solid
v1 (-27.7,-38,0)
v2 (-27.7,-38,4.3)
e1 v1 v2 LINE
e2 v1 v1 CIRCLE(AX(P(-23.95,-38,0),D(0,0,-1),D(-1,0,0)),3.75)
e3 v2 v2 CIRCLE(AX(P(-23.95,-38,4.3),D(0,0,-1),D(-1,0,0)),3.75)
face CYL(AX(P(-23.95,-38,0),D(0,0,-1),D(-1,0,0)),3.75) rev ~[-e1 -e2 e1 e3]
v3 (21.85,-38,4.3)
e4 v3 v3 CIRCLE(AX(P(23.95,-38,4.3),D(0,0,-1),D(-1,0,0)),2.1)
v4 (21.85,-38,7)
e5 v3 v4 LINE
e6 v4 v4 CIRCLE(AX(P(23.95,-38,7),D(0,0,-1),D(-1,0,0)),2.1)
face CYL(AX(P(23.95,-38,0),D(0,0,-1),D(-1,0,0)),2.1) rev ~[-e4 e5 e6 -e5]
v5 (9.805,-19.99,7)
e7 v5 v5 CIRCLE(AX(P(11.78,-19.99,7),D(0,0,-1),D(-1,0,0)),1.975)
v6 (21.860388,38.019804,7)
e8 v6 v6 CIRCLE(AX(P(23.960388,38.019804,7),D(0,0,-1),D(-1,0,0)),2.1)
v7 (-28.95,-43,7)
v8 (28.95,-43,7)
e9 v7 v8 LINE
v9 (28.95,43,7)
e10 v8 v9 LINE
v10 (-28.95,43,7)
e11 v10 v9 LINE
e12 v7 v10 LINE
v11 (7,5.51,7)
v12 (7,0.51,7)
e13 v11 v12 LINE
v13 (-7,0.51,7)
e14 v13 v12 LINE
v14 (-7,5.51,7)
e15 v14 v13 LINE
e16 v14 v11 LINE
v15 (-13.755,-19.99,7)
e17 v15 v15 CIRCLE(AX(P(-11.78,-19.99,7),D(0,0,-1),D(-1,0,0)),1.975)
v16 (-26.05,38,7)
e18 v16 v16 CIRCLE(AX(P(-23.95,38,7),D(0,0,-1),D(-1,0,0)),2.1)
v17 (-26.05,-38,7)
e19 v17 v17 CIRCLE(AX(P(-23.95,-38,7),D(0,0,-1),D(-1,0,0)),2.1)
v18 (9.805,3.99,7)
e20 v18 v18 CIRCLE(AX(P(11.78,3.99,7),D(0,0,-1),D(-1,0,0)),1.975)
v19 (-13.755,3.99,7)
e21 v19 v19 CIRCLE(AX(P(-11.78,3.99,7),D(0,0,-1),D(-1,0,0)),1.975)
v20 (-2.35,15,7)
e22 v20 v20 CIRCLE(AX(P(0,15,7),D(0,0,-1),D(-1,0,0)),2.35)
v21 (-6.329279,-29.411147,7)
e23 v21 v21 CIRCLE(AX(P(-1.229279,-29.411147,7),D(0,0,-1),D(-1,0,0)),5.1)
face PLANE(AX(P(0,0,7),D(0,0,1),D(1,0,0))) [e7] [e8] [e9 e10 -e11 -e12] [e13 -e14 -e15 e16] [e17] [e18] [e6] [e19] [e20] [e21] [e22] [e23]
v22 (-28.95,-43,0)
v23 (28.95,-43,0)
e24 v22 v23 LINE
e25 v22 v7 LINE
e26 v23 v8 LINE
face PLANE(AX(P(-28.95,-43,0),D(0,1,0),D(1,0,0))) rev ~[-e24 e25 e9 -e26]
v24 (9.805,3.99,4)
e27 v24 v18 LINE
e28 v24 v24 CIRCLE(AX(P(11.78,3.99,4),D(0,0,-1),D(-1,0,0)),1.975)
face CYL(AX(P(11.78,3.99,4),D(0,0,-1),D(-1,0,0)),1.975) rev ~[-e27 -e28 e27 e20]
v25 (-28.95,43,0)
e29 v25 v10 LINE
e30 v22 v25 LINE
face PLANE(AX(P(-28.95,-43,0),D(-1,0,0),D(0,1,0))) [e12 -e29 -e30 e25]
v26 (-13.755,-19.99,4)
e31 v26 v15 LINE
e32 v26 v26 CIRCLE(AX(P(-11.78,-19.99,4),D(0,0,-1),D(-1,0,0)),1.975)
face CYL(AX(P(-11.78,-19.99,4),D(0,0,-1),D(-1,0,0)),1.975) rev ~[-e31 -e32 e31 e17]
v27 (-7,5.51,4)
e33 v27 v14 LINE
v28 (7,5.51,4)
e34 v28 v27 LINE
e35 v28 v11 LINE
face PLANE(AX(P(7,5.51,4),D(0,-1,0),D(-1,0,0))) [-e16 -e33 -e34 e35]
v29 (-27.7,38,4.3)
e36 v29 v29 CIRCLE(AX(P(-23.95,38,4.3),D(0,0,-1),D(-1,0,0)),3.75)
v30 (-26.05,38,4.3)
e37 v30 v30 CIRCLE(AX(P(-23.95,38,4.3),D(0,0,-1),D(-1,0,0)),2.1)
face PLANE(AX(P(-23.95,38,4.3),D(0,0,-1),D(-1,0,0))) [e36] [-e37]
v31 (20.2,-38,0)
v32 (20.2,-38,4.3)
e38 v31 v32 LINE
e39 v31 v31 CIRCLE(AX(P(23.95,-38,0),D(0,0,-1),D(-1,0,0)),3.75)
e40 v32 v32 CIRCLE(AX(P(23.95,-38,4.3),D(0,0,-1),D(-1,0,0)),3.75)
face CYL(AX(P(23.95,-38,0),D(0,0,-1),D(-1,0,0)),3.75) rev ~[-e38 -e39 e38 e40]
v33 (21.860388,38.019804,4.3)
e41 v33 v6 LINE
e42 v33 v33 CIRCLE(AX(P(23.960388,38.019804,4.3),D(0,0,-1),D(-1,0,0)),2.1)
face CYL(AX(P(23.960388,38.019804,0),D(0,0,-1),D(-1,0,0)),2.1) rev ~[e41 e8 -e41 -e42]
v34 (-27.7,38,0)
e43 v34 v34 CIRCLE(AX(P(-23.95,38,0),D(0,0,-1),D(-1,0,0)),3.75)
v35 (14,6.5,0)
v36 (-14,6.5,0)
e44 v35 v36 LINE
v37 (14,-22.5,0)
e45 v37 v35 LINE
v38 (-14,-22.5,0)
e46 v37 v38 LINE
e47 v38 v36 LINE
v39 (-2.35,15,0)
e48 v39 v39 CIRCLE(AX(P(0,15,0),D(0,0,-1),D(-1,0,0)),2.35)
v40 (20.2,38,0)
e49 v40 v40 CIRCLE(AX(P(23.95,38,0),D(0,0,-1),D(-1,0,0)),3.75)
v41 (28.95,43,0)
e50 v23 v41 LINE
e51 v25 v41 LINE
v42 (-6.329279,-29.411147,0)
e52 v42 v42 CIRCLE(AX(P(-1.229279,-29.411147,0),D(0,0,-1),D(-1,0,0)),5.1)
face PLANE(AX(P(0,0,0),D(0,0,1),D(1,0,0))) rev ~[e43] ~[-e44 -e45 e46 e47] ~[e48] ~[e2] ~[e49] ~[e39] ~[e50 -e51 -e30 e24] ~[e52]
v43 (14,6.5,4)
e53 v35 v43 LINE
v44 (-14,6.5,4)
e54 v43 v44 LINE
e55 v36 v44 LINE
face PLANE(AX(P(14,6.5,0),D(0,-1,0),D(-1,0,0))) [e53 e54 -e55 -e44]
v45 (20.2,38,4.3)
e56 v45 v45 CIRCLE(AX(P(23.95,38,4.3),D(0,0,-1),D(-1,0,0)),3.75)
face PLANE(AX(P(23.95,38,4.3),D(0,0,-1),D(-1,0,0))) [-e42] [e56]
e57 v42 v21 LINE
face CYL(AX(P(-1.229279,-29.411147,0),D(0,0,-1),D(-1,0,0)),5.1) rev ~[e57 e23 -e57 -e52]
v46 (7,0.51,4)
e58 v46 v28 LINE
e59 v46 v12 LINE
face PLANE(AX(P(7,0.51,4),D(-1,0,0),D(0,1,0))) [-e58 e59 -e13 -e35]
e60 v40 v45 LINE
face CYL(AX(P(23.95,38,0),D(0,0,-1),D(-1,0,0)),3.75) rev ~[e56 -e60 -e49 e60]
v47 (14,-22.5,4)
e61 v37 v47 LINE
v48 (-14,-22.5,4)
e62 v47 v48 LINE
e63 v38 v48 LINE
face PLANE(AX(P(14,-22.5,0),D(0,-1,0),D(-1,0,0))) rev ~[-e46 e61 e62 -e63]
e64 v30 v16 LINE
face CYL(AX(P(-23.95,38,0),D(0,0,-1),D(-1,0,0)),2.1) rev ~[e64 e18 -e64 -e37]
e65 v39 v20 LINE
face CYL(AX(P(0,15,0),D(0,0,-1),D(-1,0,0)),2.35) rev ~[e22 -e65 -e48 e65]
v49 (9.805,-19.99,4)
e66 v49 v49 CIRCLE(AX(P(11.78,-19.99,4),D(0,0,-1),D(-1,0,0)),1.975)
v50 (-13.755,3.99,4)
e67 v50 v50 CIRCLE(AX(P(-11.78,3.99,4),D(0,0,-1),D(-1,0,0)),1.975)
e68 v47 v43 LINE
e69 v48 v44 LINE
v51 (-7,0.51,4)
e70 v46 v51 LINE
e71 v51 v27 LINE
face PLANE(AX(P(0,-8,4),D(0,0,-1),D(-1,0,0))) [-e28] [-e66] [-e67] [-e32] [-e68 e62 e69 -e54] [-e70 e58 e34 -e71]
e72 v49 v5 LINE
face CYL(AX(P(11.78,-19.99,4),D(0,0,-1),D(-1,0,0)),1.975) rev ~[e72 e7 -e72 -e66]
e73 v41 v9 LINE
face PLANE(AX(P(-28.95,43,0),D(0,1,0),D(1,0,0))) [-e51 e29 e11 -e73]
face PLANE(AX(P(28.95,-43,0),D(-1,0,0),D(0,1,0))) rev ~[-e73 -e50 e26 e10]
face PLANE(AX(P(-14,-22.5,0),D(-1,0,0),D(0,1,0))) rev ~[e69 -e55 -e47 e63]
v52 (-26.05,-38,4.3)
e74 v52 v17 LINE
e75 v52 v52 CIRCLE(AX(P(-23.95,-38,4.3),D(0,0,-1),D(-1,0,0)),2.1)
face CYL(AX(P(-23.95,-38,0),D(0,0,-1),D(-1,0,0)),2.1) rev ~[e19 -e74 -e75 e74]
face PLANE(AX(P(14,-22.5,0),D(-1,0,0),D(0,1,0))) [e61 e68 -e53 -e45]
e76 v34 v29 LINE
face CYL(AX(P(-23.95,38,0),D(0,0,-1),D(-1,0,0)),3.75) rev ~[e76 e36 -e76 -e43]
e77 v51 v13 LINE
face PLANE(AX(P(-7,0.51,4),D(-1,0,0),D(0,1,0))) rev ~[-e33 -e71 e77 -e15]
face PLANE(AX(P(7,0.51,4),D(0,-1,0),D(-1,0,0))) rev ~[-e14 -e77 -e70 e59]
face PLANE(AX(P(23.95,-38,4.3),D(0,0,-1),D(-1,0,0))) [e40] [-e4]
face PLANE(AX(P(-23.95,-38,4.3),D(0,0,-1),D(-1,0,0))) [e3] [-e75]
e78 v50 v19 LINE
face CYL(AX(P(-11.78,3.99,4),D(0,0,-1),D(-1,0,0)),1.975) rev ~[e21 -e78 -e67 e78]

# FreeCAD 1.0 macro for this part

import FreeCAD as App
import Part
import Sketcher

V = App.Vector

doc = App.newDocument("Part")
body = doc.addObject("PartDesign::Body", "Body")

sketch1 = body.newObject("Sketcher::SketchObject", "Sketch")
sketch1.AttachmentSupport = (doc.getObject("XY_Plane"), [""])
sketch1.MapMode = "FlatFace"
sketch1.addGeometry(Part.LineSegment(V(-28.95, 43, 0), V(-28.95, -43, 0)), False)
sketch1.addGeometry(Part.LineSegment(V(-28.95, -43, 0), V(28.95, -43, 0)), False)
sketch1.addGeometry(Part.LineSegment(V(28.95, -43, 0), V(28.95, 43, 0)), False)
sketch1.addGeometry(Part.LineSegment(V(28.95, 43, 0), V(-28.95, 43, 0)), False)
sketch1.addConstraint(Sketcher.Constraint("Coincident", 0, 2, 1, 1))
sketch1.addConstraint(Sketcher.Constraint("Coincident", 1, 2, 2, 1))
sketch1.addConstraint(Sketcher.Constraint("Coincident", 2, 2, 3, 1))
sketch1.addConstraint(Sketcher.Constraint("Coincident", 3, 2, 0, 1))
sketch1.addConstraint(Sketcher.Constraint("Vertical", 0))
sketch1.addConstraint(Sketcher.Constraint("Horizontal", 1))
sketch1.addConstraint(Sketcher.Constraint("Vertical", 2))
sketch1.addConstraint(Sketcher.Constraint("Horizontal", 3))
sketch1.addConstraint(Sketcher.Constraint("Symmetric", 0, 2, 2, 2, -1, 1))
sketch1.addConstraint(Sketcher.Constraint("DistanceY", 0, 2, 0, 1, 86.0))
sketch1.addConstraint(Sketcher.Constraint("DistanceX", 1, 1, 1, 2, 57.9))
pad1 = body.newObject("PartDesign::Pad", "Pad")
pad1.Profile = sketch1
pad1.Length = 7

sketch2 = body.newObject("Sketcher::SketchObject", "Sketch001")
sketch2.AttachmentSupport = (doc.getObject("XY_Plane"), [""])
sketch2.MapMode = "FlatFace"
sketch2.addGeometry(Part.Circle(V(-23.95, 38, 0), V(0, 0, 1), 2.1), False)
sketch2.addGeometry(Part.Circle(V(23.960388, 38.019804, 0), V(0, 0, 1), 2.1), False)
sketch2.addGeometry(Part.Circle(V(-23.95, -38, 0), V(0, 0, 1), 2.1), False)
sketch2.addGeometry(Part.Circle(V(23.95, -38, 0), V(0, 0, 1), 2.1), False)
sketch2.addGeometry(Part.Circle(V(-1.229279, -29.411147, 0), V(0, 0, 1), 5.1), False)
sketch2.addConstraint(Sketcher.Constraint("Equal", 0, 1))
sketch2.addConstraint(Sketcher.Constraint("Equal", 1, 2))
sketch2.addConstraint(Sketcher.Constraint("Equal", 2, 3))
sketch2.addConstraint(Sketcher.Constraint("Symmetric", 0, 3, 3, 3, -1, 1))
sketch2.addConstraint(Sketcher.Constraint("Symmetric", 2, 3, 3, 3, -2))
sketch2.addConstraint(Sketcher.Constraint("Diameter", 0, 4.2))
sketch2.addConstraint(Sketcher.Constraint("Diameter", 4, 10.2))
sketch2.addConstraint(Sketcher.Constraint("DistanceY", -1, 1, 0, 3, 38.0))
sketch2.addConstraint(Sketcher.Constraint("DistanceX", 2, 3, 3, 3, 47.9))
sketch2.addConstraint(Sketcher.Constraint("DistanceX", -1, 1, 1, 3, 23.960388))
sketch2.addConstraint(Sketcher.Constraint("DistanceX", 4, 3, -1, 1, 1.229279))
sketch2.addConstraint(Sketcher.Constraint("DistanceY", 4, 3, 1, 3, 67.430951))
sketch2.addConstraint(Sketcher.Constraint("DistanceY", -1, 1, 1, 3, 38.019804))
pocket1 = body.newObject("PartDesign::Pocket", "Pocket")
pocket1.Profile = sketch2
pocket1.Type = "ThroughAll"
pocket1.Reversed = True

sketch3 = body.newObject("Sketcher::SketchObject", "Sketch002")
sketch3.AttachmentSupport = (doc.getObject("XY_Plane"), [""])
sketch3.MapMode = "FlatFace"
sketch3.addGeometry(Part.Circle(V(-23.95, -38, 0), V(0, 0, 1), 3.75), False)
sketch3.addGeometry(Part.Circle(V(23.95, -38, 0), V(0, 0, 1), 3.75), False)
sketch3.addGeometry(Part.Circle(V(-23.95, 38, 0), V(0, 0, 1), 3.75), False)
sketch3.addConstraint(Sketcher.Constraint("Equal", 0, 1))
sketch3.addConstraint(Sketcher.Constraint("Equal", 1, 2))
sketch3.addConstraint(Sketcher.Constraint("Symmetric", 1, 3, 2, 3, -1, 1))
sketch3.addConstraint(Sketcher.Constraint("Symmetric", 0, 3, 1, 3, -2))
sketch3.addConstraint(Sketcher.Constraint("Diameter", 0, 7.5))
sketch3.addConstraint(Sketcher.Constraint("DistanceY", 0, 3, -1, 1, 38.0))
sketch3.addConstraint(Sketcher.Constraint("DistanceX", 0, 3, 1, 3, 47.9))
pocket2 = body.newObject("PartDesign::Pocket", "Pocket001")
pocket2.Profile = sketch3
pocket2.Length = 4.3
pocket2.Reversed = True

sketch4 = body.newObject("Sketcher::SketchObject", "Sketch003")
sketch4.AttachmentSupport = (doc.getObject("XY_Plane"), [""])
sketch4.MapMode = "FlatFace"
sketch4.addGeometry(Part.Circle(V(23.95, 38, 0), V(0, 0, 1), 3.75), False)
sketch4.addConstraint(Sketcher.Constraint("Diameter", 0, 7.5))
sketch4.addConstraint(Sketcher.Constraint("DistanceY", -1, 1, 0, 3, 38.0))
sketch4.addConstraint(Sketcher.Constraint("DistanceX", -1, 1, 0, 3, 23.95))
pocket3 = body.newObject("PartDesign::Pocket", "Pocket002")
pocket3.Profile = sketch4
pocket3.Length = 4.3
pocket3.Reversed = True

sketch5 = body.newObject("Sketcher::SketchObject", "Sketch004")
sketch5.AttachmentSupport = (doc.getObject("XY_Plane"), [""])
sketch5.MapMode = "FlatFace"
sketch5.addGeometry(Part.LineSegment(V(14, 6.5, 0), V(14, -22.5, 0)), False)
sketch5.addGeometry(Part.LineSegment(V(14, -22.5, 0), V(-14, -22.5, 0)), False)
sketch5.addGeometry(Part.LineSegment(V(-14, -22.5, 0), V(-14, 6.5, 0)), False)
sketch5.addGeometry(Part.LineSegment(V(-14, 6.5, 0), V(14, 6.5, 0)), False)
sketch5.addConstraint(Sketcher.Constraint("Coincident", 0, 2, 1, 1))
sketch5.addConstraint(Sketcher.Constraint("Coincident", 1, 2, 2, 1))
sketch5.addConstraint(Sketcher.Constraint("Coincident", 2, 2, 3, 1))
sketch5.addConstraint(Sketcher.Constraint("Coincident", 3, 2, 0, 1))
sketch5.addConstraint(Sketcher.Constraint("Vertical", 0))
sketch5.addConstraint(Sketcher.Constraint("Horizontal", 1))
sketch5.addConstraint(Sketcher.Constraint("Vertical", 2))
sketch5.addConstraint(Sketcher.Constraint("Horizontal", 3))
sketch5.addConstraint(Sketcher.Constraint("DistanceX", 1, 2, 1, 1, 28.0))
sketch5.addConstraint(Sketcher.Constraint("DistanceY", 0, 2, 0, 1, 29.0))
sketch5.addConstraint(Sketcher.Constraint("DistanceX", -1, 1, 0, 2, 14.0))
sketch5.addConstraint(Sketcher.Constraint("DistanceY", 0, 2, -1, 1, 22.5))
pocket4 = body.newObject("PartDesign::Pocket", "Pocket003")
pocket4.Profile = sketch5
pocket4.Length = 4
pocket4.Reversed = True

sketch6 = body.newObject("Sketcher::SketchObject", "Sketch005")
sketch6.AttachmentSupport = (doc.getObject("XY_Plane"), [""])
sketch6.MapMode = "FlatFace"
sketch6.AttachmentOffset = App.Placement(V(0, 0, 4), App.Rotation())
sketch6.addGeometry(Part.Circle(V(-11.78, -19.99, 0), V(0, 0, 1), 1.975), False)
sketch6.addGeometry(Part.Circle(V(11.78, -19.99, 0), V(0, 0, 1), 1.975), False)
sketch6.addGeometry(Part.Circle(V(11.78, 3.99, 0), V(0, 0, 1), 1.975), False)
sketch6.addGeometry(Part.Circle(V(-11.78, 3.99, 0), V(0, 0, 1), 1.975), False)
sketch6.addGeometry(Part.LineSegment(V(7, 5.51, 0), V(7, 0.51, 0)), False)
sketch6.addGeometry(Part.LineSegment(V(7, 0.51, 0), V(-7, 0.51, 0)), False)
sketch6.addGeometry(Part.LineSegment(V(-7, 0.51, 0), V(-7, 5.51, 0)), False)
sketch6.addGeometry(Part.LineSegment(V(-7, 5.51, 0), V(7, 5.51, 0)), False)
sketch6.addConstraint(Sketcher.Constraint("Coincident", 4, 2, 5, 1))
sketch6.addConstraint(Sketcher.Constraint("Coincident", 5, 2, 6, 1))
sketch6.addConstraint(Sketcher.Constraint("Coincident", 6, 2, 7, 1))
sketch6.addConstraint(Sketcher.Constraint("Coincident", 7, 2, 4, 1))
sketch6.addConstraint(Sketcher.Constraint("Vertical", 4))
sketch6.addConstraint(Sketcher.Constraint("Horizontal", 5))
sketch6.addConstraint(Sketcher.Constraint("Vertical", 6))
sketch6.addConstraint(Sketcher.Constraint("Horizontal", 7))
sketch6.addConstraint(Sketcher.Constraint("Equal", 0, 1))
sketch6.addConstraint(Sketcher.Constraint("Equal", 1, 2))
sketch6.addConstraint(Sketcher.Constraint("Equal", 2, 3))
sketch6.addConstraint(Sketcher.Constraint("Symmetric", 0, 3, 1, 3, -2))
sketch6.addConstraint(Sketcher.Constraint("Symmetric", 2, 3, 3, 3, -2))
sketch6.addConstraint(Sketcher.Constraint("Vertical", 1, 3, 2, 3))
sketch6.addConstraint(Sketcher.Constraint("Diameter", 0, 3.95))
sketch6.addConstraint(Sketcher.Constraint("DistanceX", 5, 2, 5, 1, 14.0))
sketch6.addConstraint(Sketcher.Constraint("DistanceY", 4, 2, 4, 1, 5.0))
sketch6.addConstraint(Sketcher.Constraint("DistanceX", -1, 1, 4, 2, 7.0))
sketch6.addConstraint(Sketcher.Constraint("DistanceY", 1, 3, 4, 2, 20.5))
sketch6.addConstraint(Sketcher.Constraint("DistanceX", 0, 3, -1, 1, 11.78))
sketch6.addConstraint(Sketcher.Constraint("DistanceY", 0, 3, -1, 1, 19.99))
sketch6.addConstraint(Sketcher.Constraint("DistanceY", -1, 1, 2, 3, 3.99))
pocket5 = body.newObject("PartDesign::Pocket", "Pocket004")
pocket5.Profile = sketch6
pocket5.Type = "ThroughAll"
pocket5.Reversed = True

sketch7 = body.newObject("Sketcher::SketchObject", "Sketch006")
sketch7.AttachmentSupport = (doc.getObject("XY_Plane"), [""])
sketch7.MapMode = "FlatFace"
sketch7.addGeometry(Part.Circle(V(0, 15, 0), V(0, 0, 1), 2.35), False)
sketch7.addConstraint(Sketcher.Constraint("PointOnObject", 0, 3, -2))
sketch7.addConstraint(Sketcher.Constraint("Diameter", 0, 4.7))
sketch7.addConstraint(Sketcher.Constraint("DistanceY", -1, 1, 0, 3, 15.0))
pocket6 = body.newObject("PartDesign::Pocket", "Pocket005")
pocket6.Profile = sketch7
pocket6.Type = "ThroughAll"
pocket6.Reversed = True

doc.recompute()
